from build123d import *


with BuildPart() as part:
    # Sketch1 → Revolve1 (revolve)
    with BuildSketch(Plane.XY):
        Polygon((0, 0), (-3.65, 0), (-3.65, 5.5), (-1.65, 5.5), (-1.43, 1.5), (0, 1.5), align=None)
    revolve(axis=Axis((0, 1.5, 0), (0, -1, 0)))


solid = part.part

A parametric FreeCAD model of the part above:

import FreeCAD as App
import Part
import Sketcher
from FreeCAD import Vector


def add_polygon(sketch, points):
    """Adds a closed chain of lines whose ends are joined by coincident constraints."""
    first, n = sketch.GeometryCount, len(points)
    for a, b in zip(points, points[1:] + points[:1]):
        sketch.addGeometry(Part.LineSegment(App.Vector(*a, 0), App.Vector(*b, 0)), False)
    for i in range(n):
        sketch.addConstraint(Sketcher.Constraint("Coincident", first + i, 2, first + (i + 1) % n, 1))

doc = App.newDocument("Part")
body = doc.addObject("PartDesign::Body", "Body")

# Sketch on XY plane
sketch1 = doc.addObject("Sketcher::SketchObject", "Sketch")
body.addObject(sketch1)
sketch1.AttachmentSupport = (doc.XY_Plane, [""])
sketch1.MapMode = "FlatFace"
add_polygon(sketch1, [(-3.65, 0), (0, 0), (0, 1.5), (-1.43, 1.5), (-1.65, 5.5), (-3.65, 5.5)])  # lines 0-5
sketch1.addConstraint([
    Sketcher.Constraint("Horizontal", 0),
    Sketcher.Constraint("Vertical", 1),
    Sketcher.Constraint("Horizontal", 2),
    Sketcher.Constraint("Horizontal", 4),
    Sketcher.Constraint("Vertical", 5),
    Sketcher.Constraint("Coincident", 0, 2, -1, 1),
    Sketcher.Constraint("DistanceX", 4, 2, 4, 1, 2.0),
    Sketcher.Constraint("DistanceY", 1, 1, 1, 2, 1.5),
    Sketcher.Constraint("DistanceY", 5, 2, 5, 1, 5.5),
    Sketcher.Constraint("DistanceX", 0, 1, 0, 2, 3.65),
    Sketcher.Constraint("DistanceX", 2, 2, 2, 1, 1.43),
])
revolution = doc.addObject("PartDesign::Revolution", "Revolution")
body.addObject(revolution)
revolution.Profile = sketch1
revolution.ReferenceAxis = (sketch1, ["V_Axis"])
revolution.Angle = 360

doc.recompute()
